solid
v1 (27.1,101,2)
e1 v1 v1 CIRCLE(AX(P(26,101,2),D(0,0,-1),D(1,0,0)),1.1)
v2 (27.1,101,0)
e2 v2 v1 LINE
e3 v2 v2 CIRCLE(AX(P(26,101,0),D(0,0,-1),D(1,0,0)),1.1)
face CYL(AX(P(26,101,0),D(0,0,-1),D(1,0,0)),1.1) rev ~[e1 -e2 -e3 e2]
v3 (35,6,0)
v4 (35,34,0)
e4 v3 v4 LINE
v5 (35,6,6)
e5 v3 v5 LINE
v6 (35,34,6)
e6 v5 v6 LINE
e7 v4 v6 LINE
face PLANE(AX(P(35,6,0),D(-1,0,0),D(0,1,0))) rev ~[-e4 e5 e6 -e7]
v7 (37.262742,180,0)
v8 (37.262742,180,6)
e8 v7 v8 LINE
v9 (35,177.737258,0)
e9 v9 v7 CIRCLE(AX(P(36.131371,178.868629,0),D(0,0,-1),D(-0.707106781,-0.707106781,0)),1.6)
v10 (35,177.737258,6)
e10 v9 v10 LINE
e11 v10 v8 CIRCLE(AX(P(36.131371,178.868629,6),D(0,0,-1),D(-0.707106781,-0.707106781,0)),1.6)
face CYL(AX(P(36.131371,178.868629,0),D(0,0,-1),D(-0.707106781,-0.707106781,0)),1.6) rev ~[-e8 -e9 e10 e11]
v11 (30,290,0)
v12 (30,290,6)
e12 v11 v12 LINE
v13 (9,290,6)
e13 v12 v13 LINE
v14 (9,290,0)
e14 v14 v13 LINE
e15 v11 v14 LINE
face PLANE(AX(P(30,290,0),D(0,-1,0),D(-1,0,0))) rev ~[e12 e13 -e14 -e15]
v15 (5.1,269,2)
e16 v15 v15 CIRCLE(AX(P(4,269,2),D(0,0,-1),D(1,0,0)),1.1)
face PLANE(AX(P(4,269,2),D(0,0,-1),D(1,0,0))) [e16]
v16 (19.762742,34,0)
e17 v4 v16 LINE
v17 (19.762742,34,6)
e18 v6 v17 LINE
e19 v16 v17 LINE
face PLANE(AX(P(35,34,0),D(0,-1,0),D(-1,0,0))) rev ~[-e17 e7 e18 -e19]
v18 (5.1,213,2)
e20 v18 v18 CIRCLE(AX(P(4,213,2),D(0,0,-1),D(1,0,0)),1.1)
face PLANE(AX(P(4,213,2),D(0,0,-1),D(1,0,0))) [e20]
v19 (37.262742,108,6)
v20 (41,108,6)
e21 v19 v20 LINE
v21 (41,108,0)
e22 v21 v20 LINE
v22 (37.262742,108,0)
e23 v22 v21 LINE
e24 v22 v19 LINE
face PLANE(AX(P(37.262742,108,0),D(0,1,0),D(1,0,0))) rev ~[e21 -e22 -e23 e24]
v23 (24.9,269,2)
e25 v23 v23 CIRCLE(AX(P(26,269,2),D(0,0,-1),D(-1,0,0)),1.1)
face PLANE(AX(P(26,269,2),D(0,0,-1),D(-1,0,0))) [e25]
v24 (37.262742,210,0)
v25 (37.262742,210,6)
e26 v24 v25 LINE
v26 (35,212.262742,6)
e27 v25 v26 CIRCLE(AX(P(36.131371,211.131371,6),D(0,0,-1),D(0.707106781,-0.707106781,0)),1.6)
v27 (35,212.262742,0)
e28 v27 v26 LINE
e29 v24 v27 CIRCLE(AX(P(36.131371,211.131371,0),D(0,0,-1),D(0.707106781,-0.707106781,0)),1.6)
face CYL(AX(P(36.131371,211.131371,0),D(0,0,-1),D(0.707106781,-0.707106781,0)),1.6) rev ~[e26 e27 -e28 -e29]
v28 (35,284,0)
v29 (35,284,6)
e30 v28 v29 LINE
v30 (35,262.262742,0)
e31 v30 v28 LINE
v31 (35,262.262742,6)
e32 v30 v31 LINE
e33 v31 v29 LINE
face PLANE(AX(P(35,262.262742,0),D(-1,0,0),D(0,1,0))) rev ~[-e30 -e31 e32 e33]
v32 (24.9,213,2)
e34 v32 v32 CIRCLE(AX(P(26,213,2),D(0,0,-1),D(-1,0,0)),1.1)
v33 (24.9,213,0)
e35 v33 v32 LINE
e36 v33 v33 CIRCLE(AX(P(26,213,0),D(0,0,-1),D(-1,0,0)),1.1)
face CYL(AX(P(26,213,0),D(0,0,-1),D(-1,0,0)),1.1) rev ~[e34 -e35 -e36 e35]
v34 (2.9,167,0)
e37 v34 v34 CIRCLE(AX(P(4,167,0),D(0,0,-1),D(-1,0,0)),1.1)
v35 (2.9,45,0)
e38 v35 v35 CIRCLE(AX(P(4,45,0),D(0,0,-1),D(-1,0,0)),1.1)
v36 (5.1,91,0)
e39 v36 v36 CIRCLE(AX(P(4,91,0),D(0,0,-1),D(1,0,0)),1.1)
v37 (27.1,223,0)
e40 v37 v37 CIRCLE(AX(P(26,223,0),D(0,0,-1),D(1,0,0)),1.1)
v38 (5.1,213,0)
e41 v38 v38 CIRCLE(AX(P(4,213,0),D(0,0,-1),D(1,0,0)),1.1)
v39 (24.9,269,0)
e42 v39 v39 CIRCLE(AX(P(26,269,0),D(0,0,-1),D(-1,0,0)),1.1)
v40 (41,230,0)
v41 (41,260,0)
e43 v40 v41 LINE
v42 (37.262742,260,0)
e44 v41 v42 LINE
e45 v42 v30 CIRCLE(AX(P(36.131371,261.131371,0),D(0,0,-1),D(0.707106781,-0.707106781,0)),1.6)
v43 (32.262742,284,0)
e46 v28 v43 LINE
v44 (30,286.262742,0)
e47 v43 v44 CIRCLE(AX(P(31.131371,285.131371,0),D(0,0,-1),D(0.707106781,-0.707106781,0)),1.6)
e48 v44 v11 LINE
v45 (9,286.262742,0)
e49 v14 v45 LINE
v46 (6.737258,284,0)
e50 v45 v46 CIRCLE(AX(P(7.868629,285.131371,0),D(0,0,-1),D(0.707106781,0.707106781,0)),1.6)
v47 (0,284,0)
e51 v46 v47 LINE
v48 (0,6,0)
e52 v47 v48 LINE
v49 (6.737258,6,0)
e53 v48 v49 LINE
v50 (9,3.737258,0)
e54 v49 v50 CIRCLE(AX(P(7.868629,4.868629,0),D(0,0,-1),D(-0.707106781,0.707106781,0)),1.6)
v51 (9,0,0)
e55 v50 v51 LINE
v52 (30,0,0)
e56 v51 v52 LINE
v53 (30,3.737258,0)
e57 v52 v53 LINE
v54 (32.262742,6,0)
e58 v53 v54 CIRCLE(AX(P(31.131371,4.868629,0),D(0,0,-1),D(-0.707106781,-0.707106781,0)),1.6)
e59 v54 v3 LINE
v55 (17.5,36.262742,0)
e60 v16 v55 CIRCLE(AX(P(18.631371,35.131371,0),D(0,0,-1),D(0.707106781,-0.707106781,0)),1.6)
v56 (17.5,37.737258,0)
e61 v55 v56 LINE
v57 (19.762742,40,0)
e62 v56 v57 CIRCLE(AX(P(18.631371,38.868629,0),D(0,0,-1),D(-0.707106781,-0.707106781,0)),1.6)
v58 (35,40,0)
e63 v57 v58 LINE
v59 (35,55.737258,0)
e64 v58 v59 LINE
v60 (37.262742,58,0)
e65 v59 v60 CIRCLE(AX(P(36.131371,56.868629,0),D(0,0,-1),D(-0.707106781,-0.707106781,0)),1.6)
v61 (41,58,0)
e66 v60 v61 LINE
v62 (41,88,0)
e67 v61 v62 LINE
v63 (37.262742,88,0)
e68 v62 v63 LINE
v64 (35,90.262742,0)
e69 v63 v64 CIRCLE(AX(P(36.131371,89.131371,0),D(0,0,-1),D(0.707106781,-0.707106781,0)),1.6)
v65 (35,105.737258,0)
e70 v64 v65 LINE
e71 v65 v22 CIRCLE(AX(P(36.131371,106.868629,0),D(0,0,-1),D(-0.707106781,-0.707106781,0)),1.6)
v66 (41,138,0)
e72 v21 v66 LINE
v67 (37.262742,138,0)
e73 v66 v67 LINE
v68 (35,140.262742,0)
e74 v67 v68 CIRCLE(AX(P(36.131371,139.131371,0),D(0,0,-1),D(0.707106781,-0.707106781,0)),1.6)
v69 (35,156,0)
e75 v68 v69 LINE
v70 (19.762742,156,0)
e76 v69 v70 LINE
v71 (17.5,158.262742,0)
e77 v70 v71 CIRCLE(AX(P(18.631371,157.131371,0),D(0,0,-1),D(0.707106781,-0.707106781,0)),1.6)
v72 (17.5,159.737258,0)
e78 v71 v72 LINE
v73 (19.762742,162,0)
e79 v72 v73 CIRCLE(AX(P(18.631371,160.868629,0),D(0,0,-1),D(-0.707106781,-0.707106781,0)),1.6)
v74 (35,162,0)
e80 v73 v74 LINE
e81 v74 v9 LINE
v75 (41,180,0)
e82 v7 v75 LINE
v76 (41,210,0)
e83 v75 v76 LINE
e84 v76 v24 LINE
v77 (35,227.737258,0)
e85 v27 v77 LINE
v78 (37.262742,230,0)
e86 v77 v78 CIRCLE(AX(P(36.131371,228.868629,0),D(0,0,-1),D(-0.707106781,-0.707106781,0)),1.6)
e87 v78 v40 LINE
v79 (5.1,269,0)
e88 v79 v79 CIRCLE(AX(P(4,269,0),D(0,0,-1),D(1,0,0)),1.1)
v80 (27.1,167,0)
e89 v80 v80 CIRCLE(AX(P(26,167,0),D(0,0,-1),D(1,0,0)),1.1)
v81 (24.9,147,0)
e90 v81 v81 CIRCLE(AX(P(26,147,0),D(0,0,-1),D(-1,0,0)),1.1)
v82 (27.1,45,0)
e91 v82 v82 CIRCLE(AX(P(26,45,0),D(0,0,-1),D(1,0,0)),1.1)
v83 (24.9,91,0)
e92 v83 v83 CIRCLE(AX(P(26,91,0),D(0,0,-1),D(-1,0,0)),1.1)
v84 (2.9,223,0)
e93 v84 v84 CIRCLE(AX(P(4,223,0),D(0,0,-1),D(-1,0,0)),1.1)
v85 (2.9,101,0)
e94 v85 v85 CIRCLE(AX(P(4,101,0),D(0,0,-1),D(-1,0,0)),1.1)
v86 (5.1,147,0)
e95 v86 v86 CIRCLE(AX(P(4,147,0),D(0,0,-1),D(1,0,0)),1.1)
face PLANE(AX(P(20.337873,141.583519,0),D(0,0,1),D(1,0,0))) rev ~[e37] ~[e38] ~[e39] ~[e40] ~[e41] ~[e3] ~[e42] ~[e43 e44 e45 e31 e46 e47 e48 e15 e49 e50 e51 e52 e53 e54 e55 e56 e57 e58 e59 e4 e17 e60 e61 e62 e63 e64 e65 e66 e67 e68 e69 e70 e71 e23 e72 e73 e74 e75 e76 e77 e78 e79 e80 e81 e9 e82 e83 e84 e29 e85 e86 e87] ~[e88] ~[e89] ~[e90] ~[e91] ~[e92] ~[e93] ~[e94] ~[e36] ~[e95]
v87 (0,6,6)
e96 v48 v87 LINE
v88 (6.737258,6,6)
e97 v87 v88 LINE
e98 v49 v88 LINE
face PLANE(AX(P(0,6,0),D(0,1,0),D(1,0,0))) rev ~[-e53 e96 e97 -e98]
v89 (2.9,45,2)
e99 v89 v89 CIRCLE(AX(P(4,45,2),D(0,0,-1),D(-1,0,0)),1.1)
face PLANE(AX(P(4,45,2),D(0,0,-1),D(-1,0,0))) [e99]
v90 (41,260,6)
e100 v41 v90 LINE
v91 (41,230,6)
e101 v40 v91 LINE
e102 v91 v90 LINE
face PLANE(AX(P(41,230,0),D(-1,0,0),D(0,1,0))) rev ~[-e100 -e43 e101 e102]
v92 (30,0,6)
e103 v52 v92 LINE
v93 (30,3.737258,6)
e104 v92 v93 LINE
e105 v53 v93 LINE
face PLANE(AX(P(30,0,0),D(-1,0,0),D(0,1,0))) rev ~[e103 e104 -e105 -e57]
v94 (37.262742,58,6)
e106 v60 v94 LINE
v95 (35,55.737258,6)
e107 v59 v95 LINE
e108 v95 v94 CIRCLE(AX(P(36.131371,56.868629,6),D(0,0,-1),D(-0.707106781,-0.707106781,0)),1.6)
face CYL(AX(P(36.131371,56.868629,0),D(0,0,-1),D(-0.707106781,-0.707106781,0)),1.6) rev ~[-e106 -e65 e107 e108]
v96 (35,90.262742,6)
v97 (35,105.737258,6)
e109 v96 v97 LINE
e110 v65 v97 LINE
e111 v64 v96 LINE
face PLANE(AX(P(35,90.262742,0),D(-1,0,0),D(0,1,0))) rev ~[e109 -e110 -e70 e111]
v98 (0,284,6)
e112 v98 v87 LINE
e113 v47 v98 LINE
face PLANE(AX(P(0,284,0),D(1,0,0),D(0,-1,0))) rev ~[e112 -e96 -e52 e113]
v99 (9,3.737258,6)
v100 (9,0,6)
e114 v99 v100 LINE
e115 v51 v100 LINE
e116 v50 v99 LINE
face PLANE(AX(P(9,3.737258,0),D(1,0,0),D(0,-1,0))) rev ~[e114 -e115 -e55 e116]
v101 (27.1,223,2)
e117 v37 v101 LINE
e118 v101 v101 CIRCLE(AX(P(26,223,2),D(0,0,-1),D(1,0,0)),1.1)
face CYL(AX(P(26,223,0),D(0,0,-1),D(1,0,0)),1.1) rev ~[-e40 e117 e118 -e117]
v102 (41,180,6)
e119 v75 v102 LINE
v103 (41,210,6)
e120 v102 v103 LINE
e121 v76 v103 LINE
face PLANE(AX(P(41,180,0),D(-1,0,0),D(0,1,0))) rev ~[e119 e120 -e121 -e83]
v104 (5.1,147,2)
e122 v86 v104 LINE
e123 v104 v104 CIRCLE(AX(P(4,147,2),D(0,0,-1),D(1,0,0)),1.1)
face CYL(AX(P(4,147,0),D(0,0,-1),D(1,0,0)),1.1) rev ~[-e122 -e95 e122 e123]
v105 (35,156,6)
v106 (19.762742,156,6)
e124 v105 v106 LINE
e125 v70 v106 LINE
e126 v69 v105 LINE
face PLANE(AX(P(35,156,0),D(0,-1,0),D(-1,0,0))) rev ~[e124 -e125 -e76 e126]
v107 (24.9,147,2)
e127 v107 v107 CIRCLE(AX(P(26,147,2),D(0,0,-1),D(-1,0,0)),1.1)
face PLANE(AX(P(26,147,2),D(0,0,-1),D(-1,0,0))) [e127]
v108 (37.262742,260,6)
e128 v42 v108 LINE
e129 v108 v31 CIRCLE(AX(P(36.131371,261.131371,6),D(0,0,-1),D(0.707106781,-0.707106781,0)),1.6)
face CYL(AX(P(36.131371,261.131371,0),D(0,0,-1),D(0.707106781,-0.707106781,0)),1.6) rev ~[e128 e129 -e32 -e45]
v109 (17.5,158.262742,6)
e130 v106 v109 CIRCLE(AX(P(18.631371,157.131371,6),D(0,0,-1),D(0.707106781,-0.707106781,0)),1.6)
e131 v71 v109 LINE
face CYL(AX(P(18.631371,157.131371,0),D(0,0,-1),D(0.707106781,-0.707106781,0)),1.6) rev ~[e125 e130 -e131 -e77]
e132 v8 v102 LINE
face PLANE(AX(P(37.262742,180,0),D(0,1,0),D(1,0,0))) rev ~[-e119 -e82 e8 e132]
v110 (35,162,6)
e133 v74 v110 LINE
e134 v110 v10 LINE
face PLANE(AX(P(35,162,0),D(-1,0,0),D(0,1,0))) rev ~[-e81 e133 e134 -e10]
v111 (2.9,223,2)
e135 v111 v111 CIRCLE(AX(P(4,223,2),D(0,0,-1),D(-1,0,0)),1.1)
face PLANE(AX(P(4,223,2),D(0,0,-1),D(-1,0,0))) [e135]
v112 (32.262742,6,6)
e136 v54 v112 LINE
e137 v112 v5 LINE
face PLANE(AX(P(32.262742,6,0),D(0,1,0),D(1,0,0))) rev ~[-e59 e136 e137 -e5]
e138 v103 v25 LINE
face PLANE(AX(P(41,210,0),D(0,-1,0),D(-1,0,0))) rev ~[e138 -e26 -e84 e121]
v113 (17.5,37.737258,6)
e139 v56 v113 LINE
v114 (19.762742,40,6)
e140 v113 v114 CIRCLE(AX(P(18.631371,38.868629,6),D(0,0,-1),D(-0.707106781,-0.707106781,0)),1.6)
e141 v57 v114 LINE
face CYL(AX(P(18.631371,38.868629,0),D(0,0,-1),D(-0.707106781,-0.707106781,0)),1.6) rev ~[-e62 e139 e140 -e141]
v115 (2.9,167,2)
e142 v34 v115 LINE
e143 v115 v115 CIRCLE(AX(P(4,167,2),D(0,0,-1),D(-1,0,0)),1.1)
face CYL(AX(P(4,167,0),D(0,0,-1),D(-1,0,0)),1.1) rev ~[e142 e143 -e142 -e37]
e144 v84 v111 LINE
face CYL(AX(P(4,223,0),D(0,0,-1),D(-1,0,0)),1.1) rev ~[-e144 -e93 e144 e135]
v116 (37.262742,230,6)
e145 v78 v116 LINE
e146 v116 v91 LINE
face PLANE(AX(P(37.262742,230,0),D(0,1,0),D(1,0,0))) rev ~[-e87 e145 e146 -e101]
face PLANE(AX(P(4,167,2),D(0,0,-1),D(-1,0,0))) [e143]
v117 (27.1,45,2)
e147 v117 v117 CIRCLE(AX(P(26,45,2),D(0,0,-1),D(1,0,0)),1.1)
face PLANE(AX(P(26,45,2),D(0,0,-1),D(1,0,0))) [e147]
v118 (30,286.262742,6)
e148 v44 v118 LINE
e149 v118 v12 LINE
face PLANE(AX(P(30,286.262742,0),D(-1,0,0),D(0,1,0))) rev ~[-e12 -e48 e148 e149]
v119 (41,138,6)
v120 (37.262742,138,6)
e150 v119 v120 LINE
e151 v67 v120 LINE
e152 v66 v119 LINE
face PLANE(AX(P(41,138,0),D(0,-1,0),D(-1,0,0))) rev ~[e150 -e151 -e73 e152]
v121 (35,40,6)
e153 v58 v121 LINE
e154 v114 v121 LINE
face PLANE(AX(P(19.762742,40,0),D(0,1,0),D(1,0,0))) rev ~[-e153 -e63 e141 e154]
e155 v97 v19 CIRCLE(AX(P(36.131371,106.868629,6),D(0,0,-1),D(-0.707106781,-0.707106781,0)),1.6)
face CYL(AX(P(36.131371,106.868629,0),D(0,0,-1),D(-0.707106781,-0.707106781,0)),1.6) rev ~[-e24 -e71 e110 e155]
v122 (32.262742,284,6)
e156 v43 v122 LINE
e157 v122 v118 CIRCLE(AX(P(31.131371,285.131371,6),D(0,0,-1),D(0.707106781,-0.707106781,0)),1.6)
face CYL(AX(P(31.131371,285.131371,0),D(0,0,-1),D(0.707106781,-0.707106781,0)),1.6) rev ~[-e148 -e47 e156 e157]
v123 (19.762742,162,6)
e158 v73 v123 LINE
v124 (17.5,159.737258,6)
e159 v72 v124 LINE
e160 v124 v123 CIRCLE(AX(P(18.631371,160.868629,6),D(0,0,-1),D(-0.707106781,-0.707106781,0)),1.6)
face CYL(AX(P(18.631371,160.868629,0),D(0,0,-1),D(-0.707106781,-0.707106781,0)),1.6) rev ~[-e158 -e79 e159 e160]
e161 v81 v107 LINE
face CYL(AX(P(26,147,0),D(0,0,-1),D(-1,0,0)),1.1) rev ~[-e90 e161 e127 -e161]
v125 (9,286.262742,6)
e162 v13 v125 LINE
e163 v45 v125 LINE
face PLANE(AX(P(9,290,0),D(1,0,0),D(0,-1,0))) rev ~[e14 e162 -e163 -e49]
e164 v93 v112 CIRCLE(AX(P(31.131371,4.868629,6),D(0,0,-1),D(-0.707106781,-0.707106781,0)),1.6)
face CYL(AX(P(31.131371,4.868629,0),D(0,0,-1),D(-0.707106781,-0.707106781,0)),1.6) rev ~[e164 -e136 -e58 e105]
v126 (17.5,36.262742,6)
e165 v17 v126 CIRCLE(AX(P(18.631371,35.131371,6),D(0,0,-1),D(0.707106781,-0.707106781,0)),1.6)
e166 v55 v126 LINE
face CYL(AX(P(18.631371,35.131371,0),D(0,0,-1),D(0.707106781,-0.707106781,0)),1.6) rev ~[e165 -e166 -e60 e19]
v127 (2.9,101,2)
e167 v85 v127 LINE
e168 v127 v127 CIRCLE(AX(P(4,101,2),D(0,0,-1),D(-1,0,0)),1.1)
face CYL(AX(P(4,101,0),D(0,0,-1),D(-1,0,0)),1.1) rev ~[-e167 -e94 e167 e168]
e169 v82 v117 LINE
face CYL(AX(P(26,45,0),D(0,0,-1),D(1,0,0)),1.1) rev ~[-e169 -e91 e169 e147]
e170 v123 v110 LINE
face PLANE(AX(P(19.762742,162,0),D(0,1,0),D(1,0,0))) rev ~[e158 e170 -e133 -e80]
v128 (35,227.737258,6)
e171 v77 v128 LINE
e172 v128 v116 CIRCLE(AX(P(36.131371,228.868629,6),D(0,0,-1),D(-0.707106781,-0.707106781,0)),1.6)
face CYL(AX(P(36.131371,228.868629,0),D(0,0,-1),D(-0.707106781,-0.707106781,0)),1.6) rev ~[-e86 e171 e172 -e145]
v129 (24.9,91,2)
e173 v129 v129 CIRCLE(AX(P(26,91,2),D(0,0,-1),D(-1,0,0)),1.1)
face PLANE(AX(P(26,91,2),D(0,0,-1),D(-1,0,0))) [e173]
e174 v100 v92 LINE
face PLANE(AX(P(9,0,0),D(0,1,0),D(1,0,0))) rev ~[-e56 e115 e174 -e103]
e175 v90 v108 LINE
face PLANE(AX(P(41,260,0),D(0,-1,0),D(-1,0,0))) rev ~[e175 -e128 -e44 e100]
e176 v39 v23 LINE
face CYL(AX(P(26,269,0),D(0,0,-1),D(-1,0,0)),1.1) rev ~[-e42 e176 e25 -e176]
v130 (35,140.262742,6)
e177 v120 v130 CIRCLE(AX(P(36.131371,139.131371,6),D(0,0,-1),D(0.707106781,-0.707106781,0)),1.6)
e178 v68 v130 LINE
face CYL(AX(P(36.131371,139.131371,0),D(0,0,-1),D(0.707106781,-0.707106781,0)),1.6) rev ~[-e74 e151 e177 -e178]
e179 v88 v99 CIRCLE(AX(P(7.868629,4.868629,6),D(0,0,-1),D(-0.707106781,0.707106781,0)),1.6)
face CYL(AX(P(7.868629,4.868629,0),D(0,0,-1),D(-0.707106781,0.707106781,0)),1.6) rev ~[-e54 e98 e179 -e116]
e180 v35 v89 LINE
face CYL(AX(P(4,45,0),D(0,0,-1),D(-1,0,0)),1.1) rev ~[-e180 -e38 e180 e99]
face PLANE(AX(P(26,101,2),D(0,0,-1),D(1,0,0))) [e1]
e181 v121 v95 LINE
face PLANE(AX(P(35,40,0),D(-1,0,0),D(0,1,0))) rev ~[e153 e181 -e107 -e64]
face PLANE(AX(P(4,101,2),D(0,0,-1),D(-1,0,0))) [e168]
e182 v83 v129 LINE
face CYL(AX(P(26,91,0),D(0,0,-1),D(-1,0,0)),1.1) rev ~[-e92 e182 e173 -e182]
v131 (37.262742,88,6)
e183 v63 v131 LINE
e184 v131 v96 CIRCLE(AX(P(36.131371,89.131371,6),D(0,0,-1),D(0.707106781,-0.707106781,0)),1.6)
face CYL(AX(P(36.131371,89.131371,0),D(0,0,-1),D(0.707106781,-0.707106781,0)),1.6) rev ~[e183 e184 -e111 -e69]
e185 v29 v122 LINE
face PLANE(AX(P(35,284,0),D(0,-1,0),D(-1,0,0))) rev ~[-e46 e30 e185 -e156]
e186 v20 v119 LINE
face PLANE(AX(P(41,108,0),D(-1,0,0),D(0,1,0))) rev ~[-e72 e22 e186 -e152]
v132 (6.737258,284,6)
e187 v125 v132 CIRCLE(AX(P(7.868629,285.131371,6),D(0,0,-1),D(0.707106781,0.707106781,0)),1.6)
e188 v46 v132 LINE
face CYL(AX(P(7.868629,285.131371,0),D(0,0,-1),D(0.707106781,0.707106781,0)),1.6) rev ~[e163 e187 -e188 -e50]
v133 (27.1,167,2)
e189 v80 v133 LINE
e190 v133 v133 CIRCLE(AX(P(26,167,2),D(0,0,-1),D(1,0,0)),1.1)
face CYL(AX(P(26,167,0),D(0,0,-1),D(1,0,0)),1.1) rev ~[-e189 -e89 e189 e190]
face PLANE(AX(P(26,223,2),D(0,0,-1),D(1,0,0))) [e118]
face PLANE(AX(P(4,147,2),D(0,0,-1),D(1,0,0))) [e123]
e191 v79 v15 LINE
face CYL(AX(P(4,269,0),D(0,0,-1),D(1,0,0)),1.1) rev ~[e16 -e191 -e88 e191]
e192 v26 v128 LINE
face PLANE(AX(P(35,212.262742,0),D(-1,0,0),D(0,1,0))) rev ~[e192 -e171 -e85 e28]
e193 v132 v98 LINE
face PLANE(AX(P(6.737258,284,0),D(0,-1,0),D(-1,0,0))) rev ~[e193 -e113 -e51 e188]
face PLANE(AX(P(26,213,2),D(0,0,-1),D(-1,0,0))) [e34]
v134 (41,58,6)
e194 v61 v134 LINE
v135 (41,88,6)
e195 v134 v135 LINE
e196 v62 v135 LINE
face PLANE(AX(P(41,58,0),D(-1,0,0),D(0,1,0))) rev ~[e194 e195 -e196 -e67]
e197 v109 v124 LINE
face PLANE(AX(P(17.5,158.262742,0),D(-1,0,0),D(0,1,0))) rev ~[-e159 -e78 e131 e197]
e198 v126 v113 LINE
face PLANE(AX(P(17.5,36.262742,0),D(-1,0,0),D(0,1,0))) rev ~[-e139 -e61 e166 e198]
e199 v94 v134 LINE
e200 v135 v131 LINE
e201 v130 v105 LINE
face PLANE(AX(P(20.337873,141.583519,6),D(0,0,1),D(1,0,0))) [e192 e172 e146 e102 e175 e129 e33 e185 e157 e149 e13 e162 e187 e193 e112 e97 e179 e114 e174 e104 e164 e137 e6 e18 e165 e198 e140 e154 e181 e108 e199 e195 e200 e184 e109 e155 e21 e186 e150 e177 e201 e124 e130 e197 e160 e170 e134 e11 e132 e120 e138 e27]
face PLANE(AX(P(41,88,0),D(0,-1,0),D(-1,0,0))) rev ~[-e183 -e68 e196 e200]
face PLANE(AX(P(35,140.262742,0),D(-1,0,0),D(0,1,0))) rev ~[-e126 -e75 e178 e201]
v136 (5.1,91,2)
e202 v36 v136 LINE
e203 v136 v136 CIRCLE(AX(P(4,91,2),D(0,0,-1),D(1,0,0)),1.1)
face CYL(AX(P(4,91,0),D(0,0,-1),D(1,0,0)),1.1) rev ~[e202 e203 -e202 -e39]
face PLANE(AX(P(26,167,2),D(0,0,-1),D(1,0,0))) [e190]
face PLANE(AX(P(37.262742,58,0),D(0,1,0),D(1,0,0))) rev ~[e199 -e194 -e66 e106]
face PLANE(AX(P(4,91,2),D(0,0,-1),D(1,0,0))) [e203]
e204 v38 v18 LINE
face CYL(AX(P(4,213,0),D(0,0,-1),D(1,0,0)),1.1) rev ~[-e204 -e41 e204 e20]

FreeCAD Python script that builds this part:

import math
import FreeCAD as App
import Part
import Sketcher

V = App.Vector
Q = App.Units.Quantity

doc = App.newDocument("Part")
params = doc.addObject("Spreadsheet::Sheet", "Params")
for row, (alias, value) in enumerate([
    ("sketch1_radius", "1.6 mm"),
    ("sketch1_width", "21 mm"),
    ("sketch1_height", "28 mm"),
    ("sketch1_height2", "30 mm"),
    ("sketch1_height3", "278 mm"),
    ("pad1_length", "6 mm"),
    ("sketch2_diameter", "2.2 mm"),
    ("pocket1_length", "2 mm"),
], start=1):
    params.set(f"A{row}", alias)
    params.set(f"B{row}", "=" + value)
    params.setAlias(f"B{row}", alias)

body = doc.addObject("PartDesign::Body", "Body")

sketch1 = doc.addObject("Sketcher::SketchObject", "Sketch")
body.addObject(sketch1)
sketch1.AttachmentSupport = (doc.XY_Plane, [""])
sketch1.MapMode = "FlatFace"
sketch1.addGeometry(Part.LineSegment(V(0, 6, 0), V(6.7, 6, 0)), False)
sketch1.addGeometry(Part.ArcOfCircle(Part.Circle(V(7.9, 4.9, 0), V(0, 0, 1), 1.6), math.radians(-45), math.radians(135)), False)
sketch1.addGeometry(Part.LineSegment(V(9, 3.7, 0), V(9, 0, 0)), False)
sketch1.addGeometry(Part.LineSegment(V(9, 0, 0), V(30, 0, 0)), False)
sketch1.addGeometry(Part.LineSegment(V(30, 0, 0), V(30, 3.7, 0)), False)
sketch1.addGeometry(Part.ArcOfCircle(Part.Circle(V(31.1, 4.9, 0), V(0, 0, 1), 1.6), math.radians(45), math.radians(225)), False)
sketch1.addGeometry(Part.LineSegment(V(32.3, 6, 0), V(35, 6, 0)), False)
sketch1.addGeometry(Part.LineSegment(V(35, 6, 0), V(35, 34, 0)), False)
sketch1.addGeometry(Part.LineSegment(V(35, 34, 0), V(19.8, 34, 0)), False)
sketch1.addGeometry(Part.ArcOfCircle(Part.Circle(V(18.6, 35.1, 0), V(0, 0, 1), 1.6), math.radians(135), math.radians(315)), False)
sketch1.addGeometry(Part.LineSegment(V(17.5, 36.3, 0), V(17.5, 37.7, 0)), False)
sketch1.addGeometry(Part.ArcOfCircle(Part.Circle(V(18.6, 38.9, 0), V(0, 0, 1), 1.6), math.radians(45), math.radians(225)), False)
sketch1.addGeometry(Part.LineSegment(V(19.8, 40, 0), V(35, 40, 0)), False)
sketch1.addGeometry(Part.LineSegment(V(35, 40, 0), V(35, 55.7, 0)), False)
sketch1.addGeometry(Part.ArcOfCircle(Part.Circle(V(36.1, 56.9, 0), V(0, 0, 1), 1.6), math.radians(45), math.radians(225)), False)
sketch1.addGeometry(Part.LineSegment(V(37.3, 58, 0), V(41, 58, 0)), False)
sketch1.addGeometry(Part.LineSegment(V(41, 58, 0), V(41, 88, 0)), False)
sketch1.addGeometry(Part.LineSegment(V(41, 88, 0), V(37.3, 88, 0)), False)
sketch1.addGeometry(Part.ArcOfCircle(Part.Circle(V(36.1, 89.1, 0), V(0, 0, 1), 1.6), math.radians(135), math.radians(315)), False)
sketch1.addGeometry(Part.LineSegment(V(35, 90.3, 0), V(35, 105.7, 0)), False)
sketch1.addGeometry(Part.ArcOfCircle(Part.Circle(V(36.1, 106.9, 0), V(0, 0, 1), 1.6), math.radians(45), math.radians(225)), False)
sketch1.addGeometry(Part.LineSegment(V(37.3, 108, 0), V(41, 108, 0)), False)
sketch1.addGeometry(Part.LineSegment(V(41, 108, 0), V(41, 138, 0)), False)
sketch1.addGeometry(Part.LineSegment(V(41, 138, 0), V(37.3, 138, 0)), False)
sketch1.addGeometry(Part.ArcOfCircle(Part.Circle(V(36.1, 139.1, 0), V(0, 0, 1), 1.6), math.radians(135), math.radians(315)), False)
sketch1.addGeometry(Part.LineSegment(V(35, 140.3, 0), V(35, 156, 0)), False)
sketch1.addGeometry(Part.LineSegment(V(35, 156, 0), V(19.8, 156, 0)), False)
sketch1.addGeometry(Part.ArcOfCircle(Part.Circle(V(18.6, 157.1, 0), V(0, 0, 1), 1.6), math.radians(135), math.radians(315)), False)
sketch1.addGeometry(Part.LineSegment(V(17.5, 158.3, 0), V(17.5, 159.7, 0)), False)
sketch1.addGeometry(Part.ArcOfCircle(Part.Circle(V(18.6, 160.9, 0), V(0, 0, 1), 1.6), math.radians(45), math.radians(225)), False)
sketch1.addGeometry(Part.LineSegment(V(19.8, 162, 0), V(35, 162, 0)), False)
sketch1.addGeometry(Part.LineSegment(V(35, 162, 0), V(35, 177.7, 0)), False)
sketch1.addGeometry(Part.ArcOfCircle(Part.Circle(V(36.1, 178.9, 0), V(0, 0, 1), 1.6), math.radians(45), math.radians(225)), False)
sketch1.addGeometry(Part.LineSegment(V(37.3, 180, 0), V(41, 180, 0)), False)
sketch1.addGeometry(Part.LineSegment(V(41, 180, 0), V(41, 210, 0)), False)
sketch1.addGeometry(Part.LineSegment(V(41, 210, 0), V(37.3, 210, 0)), False)
sketch1.addGeometry(Part.ArcOfCircle(Part.Circle(V(36.1, 211.1, 0), V(0, 0, 1), 1.6), math.radians(135), math.radians(315)), False)
sketch1.addGeometry(Part.LineSegment(V(35, 212.3, 0), V(35, 227.7, 0)), False)
sketch1.addGeometry(Part.ArcOfCircle(Part.Circle(V(36.1, 228.9, 0), V(0, 0, 1), 1.6), math.radians(45), math.radians(225)), False)
sketch1.addGeometry(Part.LineSegment(V(37.3, 230, 0), V(41, 230, 0)), False)
sketch1.addGeometry(Part.LineSegment(V(41, 230, 0), V(41, 260, 0)), False)
sketch1.addGeometry(Part.LineSegment(V(41, 260, 0), V(37.3, 260, 0)), False)
sketch1.addGeometry(Part.ArcOfCircle(Part.Circle(V(36.1, 261.1, 0), V(0, 0, 1), 1.6), math.radians(135), math.radians(315)), False)
sketch1.addGeometry(Part.LineSegment(V(35, 262.3, 0), V(35, 284, 0)), False)
sketch1.addGeometry(Part.LineSegment(V(35, 284, 0), V(32.3, 284, 0)), False)
sketch1.addGeometry(Part.ArcOfCircle(Part.Circle(V(31.1, 285.1, 0), V(0, 0, 1), 1.6), math.radians(135), math.radians(315)), False)
sketch1.addGeometry(Part.LineSegment(V(30, 286.3, 0), V(30, 290, 0)), False)
sketch1.addGeometry(Part.LineSegment(V(30, 290, 0), V(9, 290, 0)), False)
sketch1.addGeometry(Part.LineSegment(V(9, 290, 0), V(9, 286.3, 0)), False)
sketch1.addGeometry(Part.ArcOfCircle(Part.Circle(V(7.9, 285.1, 0), V(0, 0, 1), 1.6), math.radians(-135), math.radians(45)), False)
sketch1.addGeometry(Part.LineSegment(V(6.7, 284, 0), V(0, 284, 0)), False)
sketch1.addGeometry(Part.LineSegment(V(0, 284, 0), V(0, 6, 0)), False)
sketch1.addConstraint(Sketcher.Constraint("Coincident", 0, 2, 1, 2))
sketch1.addConstraint(Sketcher.Constraint("Coincident", 1, 1, 2, 1))
sketch1.addConstraint(Sketcher.Constraint("Coincident", 2, 2, 3, 1))
sketch1.addConstraint(Sketcher.Constraint("Coincident", 3, 2, 4, 1))
sketch1.addConstraint(Sketcher.Constraint("Coincident", 4, 2, 5, 2))
sketch1.addConstraint(Sketcher.Constraint("Coincident", 5, 1, 6, 1))
sketch1.addConstraint(Sketcher.Constraint("Coincident", 6, 2, 7, 1))
sketch1.addConstraint(Sketcher.Constraint("Coincident", 7, 2, 8, 1))
sketch1.addConstraint(Sketcher.Constraint("Coincident", 8, 2, 9, 2))
sketch1.addConstraint(Sketcher.Constraint("Coincident", 9, 1, 10, 1))
sketch1.addConstraint(Sketcher.Constraint("Coincident", 10, 2, 11, 2))
sketch1.addConstraint(Sketcher.Constraint("Coincident", 11, 1, 12, 1))
sketch1.addConstraint(Sketcher.Constraint("Coincident", 12, 2, 13, 1))
sketch1.addConstraint(Sketcher.Constraint("Coincident", 13, 2, 14, 2))
sketch1.addConstraint(Sketcher.Constraint("Coincident", 14, 1, 15, 1))
sketch1.addConstraint(Sketcher.Constraint("Coincident", 15, 2, 16, 1))
sketch1.addConstraint(Sketcher.Constraint("Coincident", 16, 2, 17, 1))
sketch1.addConstraint(Sketcher.Constraint("Coincident", 17, 2, 18, 2))
sketch1.addConstraint(Sketcher.Constraint("Coincident", 18, 1, 19, 1))
sketch1.addConstraint(Sketcher.Constraint("Coincident", 19, 2, 20, 2))
sketch1.addConstraint(Sketcher.Constraint("Coincident", 20, 1, 21, 1))
sketch1.addConstraint(Sketcher.Constraint("Coincident", 21, 2, 22, 1))
sketch1.addConstraint(Sketcher.Constraint("Coincident", 22, 2, 23, 1))
sketch1.addConstraint(Sketcher.Constraint("Coincident", 23, 2, 24, 2))
sketch1.addConstraint(Sketcher.Constraint("Coincident", 24, 1, 25, 1))
sketch1.addConstraint(Sketcher.Constraint("Coincident", 25, 2, 26, 1))
sketch1.addConstraint(Sketcher.Constraint("Coincident", 26, 2, 27, 2))
sketch1.addConstraint(Sketcher.Constraint("Coincident", 27, 1, 28, 1))
sketch1.addConstraint(Sketcher.Constraint("Coincident", 28, 2, 29, 2))
sketch1.addConstraint(Sketcher.Constraint("Coincident", 29, 1, 30, 1))
sketch1.addConstraint(Sketcher.Constraint("Coincident", 30, 2, 31, 1))
sketch1.addConstraint(Sketcher.Constraint("Coincident", 31, 2, 32, 2))
sketch1.addConstraint(Sketcher.Constraint("Coincident", 32, 1, 33, 1))
sketch1.addConstraint(Sketcher.Constraint("Coincident", 33, 2, 34, 1))
sketch1.addConstraint(Sketcher.Constraint("Coincident", 34, 2, 35, 1))
sketch1.addConstraint(Sketcher.Constraint("Coincident", 35, 2, 36, 2))
sketch1.addConstraint(Sketcher.Constraint("Coincident", 36, 1, 37, 1))
sketch1.addConstraint(Sketcher.Constraint("Coincident", 37, 2, 38, 2))
sketch1.addConstraint(Sketcher.Constraint("Coincident", 38, 1, 39, 1))
sketch1.addConstraint(Sketcher.Constraint("Coincident", 39, 2, 40, 1))
sketch1.addConstraint(Sketcher.Constraint("Coincident", 40, 2, 41, 1))
sketch1.addConstraint(Sketcher.Constraint("Coincident", 41, 2, 42, 2))
sketch1.addConstraint(Sketcher.Constraint("Coincident", 42, 1, 43, 1))
sketch1.addConstraint(Sketcher.Constraint("Coincident", 43, 2, 44, 1))
sketch1.addConstraint(Sketcher.Constraint("Coincident", 44, 2, 45, 2))
sketch1.addConstraint(Sketcher.Constraint("Coincident", 45, 1, 46, 1))
sketch1.addConstraint(Sketcher.Constraint("Coincident", 46, 2, 47, 1))
sketch1.addConstraint(Sketcher.Constraint("Coincident", 47, 2, 48, 1))
sketch1.addConstraint(Sketcher.Constraint("Coincident", 48, 2, 49, 2))
sketch1.addConstraint(Sketcher.Constraint("Coincident", 49, 1, 50, 1))
sketch1.addConstraint(Sketcher.Constraint("Coincident", 50, 2, 51, 1))
sketch1.addConstraint(Sketcher.Constraint("Coincident", 51, 2, 0, 1))
sketch1.addConstraint(Sketcher.Constraint("Horizontal", 0))
sketch1.addConstraint(Sketcher.Constraint("Vertical", 2))
sketch1.addConstraint(Sketcher.Constraint("Horizontal", 3))
sketch1.addConstraint(Sketcher.Constraint("Vertical", 4))
sketch1.addConstraint(Sketcher.Constraint("Horizontal", 6))
sketch1.addConstraint(Sketcher.Constraint("Vertical", 7))
sketch1.addConstraint(Sketcher.Constraint("Horizontal", 8))
sketch1.addConstraint(Sketcher.Constraint("Vertical", 10))
sketch1.addConstraint(Sketcher.Constraint("Horizontal", 12))
sketch1.addConstraint(Sketcher.Constraint("Vertical", 13))
sketch1.addConstraint(Sketcher.Constraint("Horizontal", 15))
sketch1.addConstraint(Sketcher.Constraint("Vertical", 16))
sketch1.addConstraint(Sketcher.Constraint("Horizontal", 17))
sketch1.addConstraint(Sketcher.Constraint("Vertical", 19))
sketch1.addConstraint(Sketcher.Constraint("Horizontal", 21))
sketch1.addConstraint(Sketcher.Constraint("Vertical", 22))
sketch1.addConstraint(Sketcher.Constraint("Horizontal", 23))
sketch1.addConstraint(Sketcher.Constraint("Vertical", 25))
sketch1.addConstraint(Sketcher.Constraint("Horizontal", 26))
sketch1.addConstraint(Sketcher.Constraint("Vertical", 28))
sketch1.addConstraint(Sketcher.Constraint("Horizontal", 30))
sketch1.addConstraint(Sketcher.Constraint("Vertical", 31))
sketch1.addConstraint(Sketcher.Constraint("Horizontal", 33))
sketch1.addConstraint(Sketcher.Constraint("Vertical", 34))
sketch1.addConstraint(Sketcher.Constraint("Horizontal", 35))
sketch1.addConstraint(Sketcher.Constraint("Vertical", 37))
sketch1.addConstraint(Sketcher.Constraint("Horizontal", 39))
sketch1.addConstraint(Sketcher.Constraint("Vertical", 40))
sketch1.addConstraint(Sketcher.Constraint("Horizontal", 41))
sketch1.addConstraint(Sketcher.Constraint("Vertical", 43))
sketch1.addConstraint(Sketcher.Constraint("Horizontal", 44))
sketch1.addConstraint(Sketcher.Constraint("Vertical", 46))
sketch1.addConstraint(Sketcher.Constraint("Horizontal", 47))
sketch1.addConstraint(Sketcher.Constraint("Vertical", 48))
sketch1.addConstraint(Sketcher.Constraint("Horizontal", 50))
sketch1.addConstraint(Sketcher.Constraint("Vertical", 51))
sketch1.addConstraint(Sketcher.Constraint("Equal", 1, 5))
sketch1.addConstraint(Sketcher.Constraint("Equal", 5, 9))
sketch1.addConstraint(Sketcher.Constraint("Equal", 9, 11))
sketch1.addConstraint(Sketcher.Constraint("Equal", 11, 14))
sketch1.addConstraint(Sketcher.Constraint("Equal", 14, 18))
sketch1.addConstraint(Sketcher.Constraint("Equal", 18, 20))
sketch1.addConstraint(Sketcher.Constraint("Equal", 20, 24))
sketch1.addConstraint(Sketcher.Constraint("Equal", 24, 27))
sketch1.addConstraint(Sketcher.Constraint("Equal", 27, 29))
sketch1.addConstraint(Sketcher.Constraint("Equal", 29, 32))
sketch1.addConstraint(Sketcher.Constraint("Equal", 32, 36))
sketch1.addConstraint(Sketcher.Constraint("Equal", 36, 38))
sketch1.addConstraint(Sketcher.Constraint("Equal", 38, 42))
sketch1.addConstraint(Sketcher.Constraint("Equal", 42, 45))
sketch1.addConstraint(Sketcher.Constraint("Equal", 45, 49))
sketch1.addConstraint(Sketcher.Constraint("PointOnObject", 2, 2, -1))
sketch1.addConstraint(Sketcher.Constraint("PointOnObject", 50, 2, -2))
sketch1.addConstraint(Sketcher.Constraint("Horizontal", 1, 3, 5, 3))
sketch1.addConstraint(Sketcher.Constraint("Horizontal", 45, 3, 49, 3))
sketch1.addConstraint(Sketcher.Constraint("Horizontal", 1, 1, 4, 2))
sketch1.addConstraint(Sketcher.Constraint("Horizontal", 0, 2, 5, 1))
sketch1.addConstraint(Sketcher.Constraint("Horizontal", 45, 1, 48, 2))
sketch1.addConstraint(Sketcher.Constraint("Horizontal", 44, 2, 49, 1))
sketch1.addConstraint(Sketcher.Constraint("Vertical", 9, 3, 11, 3))
sketch1.addConstraint(Sketcher.Constraint("Vertical", 14, 3, 18, 3))
sketch1.addConstraint(Sketcher.Constraint("Vertical", 18, 3, 20, 3))
sketch1.addConstraint(Sketcher.Constraint("Vertical", 20, 3, 24, 3))
sketch1.addConstraint(Sketcher.Constraint("Vertical", 11, 3, 27, 3))
sketch1.addConstraint(Sketcher.Constraint("Vertical", 27, 3, 29, 3))
sketch1.addConstraint(Sketcher.Constraint("Vertical", 24, 3, 32, 3))
sketch1.addConstraint(Sketcher.Constraint("Vertical", 32, 3, 36, 3))
sketch1.addConstraint(Sketcher.Constraint("Vertical", 36, 3, 38, 3))
sketch1.addConstraint(Sketcher.Constraint("Vertical", 38, 3, 42, 3))
sketch1.addConstraint(Sketcher.Constraint("Vertical", 5, 3, 45, 3))
sketch1.addConstraint(Sketcher.Constraint("Vertical", 1, 3, 49, 3))
sketch1.addConstraint(Sketcher.Constraint("Vertical", 8, 2, 11, 1))
sketch1.addConstraint(Sketcher.Constraint("Vertical", 7, 2, 12, 2))
sketch1.addConstraint(Sketcher.Constraint("Vertical", 14, 1, 17, 2))
sketch1.addConstraint(Sketcher.Constraint("Vertical", 13, 2, 18, 1))
sketch1.addConstraint(Sketcher.Constraint("Vertical", 17, 2, 20, 1))
sketch1.addConstraint(Sketcher.Constraint("Vertical", 16, 2, 21, 2))
sketch1.addConstraint(Sketcher.Constraint("Vertical", 20, 1, 23, 2))
sketch1.addConstraint(Sketcher.Constraint("Vertical", 19, 2, 24, 1))
sketch1.addConstraint(Sketcher.Constraint("Vertical", 11, 1, 26, 2))
sketch1.addConstraint(Sketcher.Constraint("Vertical", 10, 2, 27, 1))
sketch1.addConstraint(Sketcher.Constraint("Vertical", 26, 2, 29, 1))
sketch1.addConstraint(Sketcher.Constraint("Vertical", 25, 2, 30, 2))
sketch1.addConstraint(Sketcher.Constraint("Vertical", 23, 2, 32, 1))
sketch1.addConstraint(Sketcher.Constraint("Vertical", 22, 2, 33, 2))
sketch1.addConstraint(Sketcher.Constraint("Vertical", 32, 1, 35, 2))
sketch1.addConstraint(Sketcher.Constraint("Vertical", 31, 2, 36, 1))
sketch1.addConstraint(Sketcher.Constraint("Vertical", 35, 2, 38, 1))
sketch1.addConstraint(Sketcher.Constraint("Vertical", 34, 2, 39, 2))
sketch1.addConstraint(Sketcher.Constraint("Vertical", 38, 1, 41, 2))
sketch1.addConstraint(Sketcher.Constraint("Vertical", 37, 2, 42, 1))
sketch1.addConstraint(Sketcher.Constraint("Vertical", 5, 1, 44, 2))
sketch1.addConstraint(Sketcher.Constraint("Vertical", 4, 2, 45, 1))
sketch1.addConstraint(Sketcher.Constraint("Equal", 41, 2))
sketch1.addConstraint(Sketcher.Constraint("Equal", 16, 22))
sketch1.addConstraint(Sketcher.Constraint("Equal", 13, 25))
sketch1.addConstraint(Sketcher.Constraint("Equal", 10, 28))
sketch1.addConstraint(Sketcher.Constraint("Equal", 25, 31))
sketch1.addConstraint(Sketcher.Constraint("Equal", 22, 34))
sketch1.addConstraint(Sketcher.Constraint("Equal", 19, 37))
sketch1.addConstraint(Sketcher.Constraint("Equal", 34, 40))
sketch1.addConstraint(Sketcher.Constraint("Equal", 4, 46))
sketch1.addConstraint(Sketcher.Constraint("Radius", 1, Q("1.6 mm")))
sketch1.addConstraint(Sketcher.Constraint("DistanceX", 3, 1, 3, 2, Q("21 mm")))
sketch1.addConstraint(Sketcher.Constraint("DistanceY", 7, 1, 7, 2, Q("28 mm")))
sketch1.addConstraint(Sketcher.Constraint("DistanceY", 16, 1, 16, 2, Q("30 mm")))
sketch1.addConstraint(Sketcher.Constraint("DistanceY", 51, 2, 51, 1, Q("278 mm")))
sketch1.addConstraint(Sketcher.Constraint("DistanceY", -1, 1, 0, 2, Q("6 mm")))
sketch1.addConstraint(Sketcher.Constraint("DistanceX", -1, 1, 1, 1, Q("9 mm")))
sketch1.addConstraint(Sketcher.Constraint("DistanceX", -1, 1, 6, 2, Q("35 mm")))
sketch1.addConstraint(Sketcher.Constraint("DistanceY", -1, 1, 11, 1, Q("40 mm")))
sketch1.addConstraint(Sketcher.Constraint("DistanceY", -1, 1, 14, 1, Q("58 mm")))
sketch1.addConstraint(Sketcher.Constraint("DistanceX", -1, 1, 15, 2, Q("41 mm")))
sketch1.addConstraint(Sketcher.Constraint("DistanceY", -1, 1, 20, 1, Q("108 mm")))
sketch1.addConstraint(Sketcher.Constraint("DistanceX", -1, 1, 9, 1, Q("17.5 mm")))
sketch1.addConstraint(Sketcher.Constraint("DistanceX", 0, 1, 0, 2, Q("6.737258 mm")))
sketch1.addConstraint(Sketcher.Constraint("DistanceX", 8, 2, 8, 1, Q("15.237258 mm")))
sketch1.addConstraint(Sketcher.Constraint("DistanceX", -1, 1, 1, 3, Q("7.868629 mm")))
sketch1.addConstraint(Sketcher.Constraint("DistanceX", -1, 1, 9, 3, Q("18.631371 mm")))
sketch1.addConstraint(Sketcher.Constraint("DistanceX", -1, 1, 14, 3, Q("36.131371 mm")))
sketch1.setExpression("Constraints[154]", "Params.sketch1_radius")
sketch1.setExpression("Constraints[155]", "Params.sketch1_width")
sketch1.setExpression("Constraints[156]", "Params.sketch1_height")
sketch1.setExpression("Constraints[157]", "Params.sketch1_height2")
sketch1.setExpression("Constraints[158]", "Params.sketch1_height3")
pad1 = doc.addObject("PartDesign::Pad", "Pad")
body.addObject(pad1)
pad1.Profile = sketch1
pad1.setExpression("Length", "Params.pad1_length")

sketch2 = doc.addObject("Sketcher::SketchObject", "Sketch001")
body.addObject(sketch2)
sketch2.AttachmentSupport = (doc.XY_Plane, [""])
sketch2.MapMode = "FlatFace"
sketch2.addGeometry(Part.Circle(V(4, 167, 0), V(0, 0, 1), 1.1), False)
sketch2.addGeometry(Part.Circle(V(26, 167, 0), V(0, 0, 1), 1.1), False)
sketch2.addGeometry(Part.Circle(V(26, 213, 0), V(0, 0, 1), 1.1), False)
sketch2.addGeometry(Part.Circle(V(4, 213, 0), V(0, 0, 1), 1.1), False)
sketch2.addGeometry(Part.Circle(V(26, 223, 0), V(0, 0, 1), 1.1), False)
sketch2.addGeometry(Part.Circle(V(4, 223, 0), V(0, 0, 1), 1.1), False)
sketch2.addGeometry(Part.Circle(V(26, 269, 0), V(0, 0, 1), 1.1), False)
sketch2.addGeometry(Part.Circle(V(4, 269, 0), V(0, 0, 1), 1.1), False)
sketch2.addGeometry(Part.Circle(V(4, 45, 0), V(0, 0, 1), 1.1), False)
sketch2.addGeometry(Part.Circle(V(26, 45, 0), V(0, 0, 1), 1.1), False)
sketch2.addGeometry(Part.Circle(V(26, 91, 0), V(0, 0, 1), 1.1), False)
sketch2.addGeometry(Part.Circle(V(4, 91, 0), V(0, 0, 1), 1.1), False)
sketch2.addGeometry(Part.Circle(V(26, 101, 0), V(0, 0, 1), 1.1), False)
sketch2.addGeometry(Part.Circle(V(4, 101, 0), V(0, 0, 1), 1.1), False)
sketch2.addGeometry(Part.Circle(V(26, 147, 0), V(0, 0, 1), 1.1), False)
sketch2.addGeometry(Part.Circle(V(4, 147, 0), V(0, 0, 1), 1.1), False)
sketch2.addConstraint(Sketcher.Constraint("Equal", 0, 1))
sketch2.addConstraint(Sketcher.Constraint("Equal", 1, 2))
sketch2.addConstraint(Sketcher.Constraint("Equal", 2, 3))
sketch2.addConstraint(Sketcher.Constraint("Equal", 3, 4))
sketch2.addConstraint(Sketcher.Constraint("Equal", 4, 5))
sketch2.addConstraint(Sketcher.Constraint("Equal", 5, 6))
sketch2.addConstraint(Sketcher.Constraint("Equal", 6, 7))
sketch2.addConstraint(Sketcher.Constraint("Equal", 7, 8))
sketch2.addConstraint(Sketcher.Constraint("Equal", 8, 9))
sketch2.addConstraint(Sketcher.Constraint("Equal", 9, 10))
sketch2.addConstraint(Sketcher.Constraint("Equal", 10, 11))
sketch2.addConstraint(Sketcher.Constraint("Equal", 11, 12))
sketch2.addConstraint(Sketcher.Constraint("Equal", 12, 13))
sketch2.addConstraint(Sketcher.Constraint("Equal", 13, 14))
sketch2.addConstraint(Sketcher.Constraint("Equal", 14, 15))
sketch2.addConstraint(Sketcher.Constraint("Horizontal", 0, 3, 1, 3))
sketch2.addConstraint(Sketcher.Constraint("Horizontal", 2, 3, 3, 3))
sketch2.addConstraint(Sketcher.Constraint("Horizontal", 4, 3, 5, 3))
sketch2.addConstraint(Sketcher.Constraint("Horizontal", 6, 3, 7, 3))
sketch2.addConstraint(Sketcher.Constraint("Horizontal", 8, 3, 9, 3))
sketch2.addConstraint(Sketcher.Constraint("Horizontal", 10, 3, 11, 3))
sketch2.addConstraint(Sketcher.Constraint("Horizontal", 12, 3, 13, 3))
sketch2.addConstraint(Sketcher.Constraint("Horizontal", 14, 3, 15, 3))
sketch2.addConstraint(Sketcher.Constraint("Vertical", 1, 3, 2, 3))
sketch2.addConstraint(Sketcher.Constraint("Vertical", 0, 3, 3, 3))
sketch2.addConstraint(Sketcher.Constraint("Vertical", 2, 3, 4, 3))
sketch2.addConstraint(Sketcher.Constraint("Vertical", 3, 3, 5, 3))
sketch2.addConstraint(Sketcher.Constraint("Vertical", 4, 3, 6, 3))
sketch2.addConstraint(Sketcher.Constraint("Vertical", 5, 3, 7, 3))
sketch2.addConstraint(Sketcher.Constraint("Vertical", 7, 3, 8, 3))
sketch2.addConstraint(Sketcher.Constraint("Vertical", 6, 3, 9, 3))
sketch2.addConstraint(Sketcher.Constraint("Vertical", 9, 3, 10, 3))
sketch2.addConstraint(Sketcher.Constraint("Vertical", 8, 3, 11, 3))
sketch2.addConstraint(Sketcher.Constraint("Vertical", 10, 3, 12, 3))
sketch2.addConstraint(Sketcher.Constraint("Vertical", 11, 3, 13, 3))
sketch2.addConstraint(Sketcher.Constraint("Vertical", 12, 3, 14, 3))
sketch2.addConstraint(Sketcher.Constraint("Vertical", 13, 3, 15, 3))
sketch2.addConstraint(Sketcher.Constraint("Diameter", 0, Q("2.2 mm")))
sketch2.addConstraint(Sketcher.Constraint("DistanceX", -1, 1, 0, 3, Q("4 mm")))
sketch2.addConstraint(Sketcher.Constraint("DistanceY", -1, 1, 0, 3, Q("167 mm")))
sketch2.addConstraint(Sketcher.Constraint("DistanceX", -1, 1, 1, 3, Q("26 mm")))
sketch2.addConstraint(Sketcher.Constraint("DistanceY", -1, 1, 2, 3, Q("213 mm")))
sketch2.addConstraint(Sketcher.Constraint("DistanceY", -1, 1, 4, 3, Q("223 mm")))
sketch2.addConstraint(Sketcher.Constraint("DistanceY", -1, 1, 6, 3, Q("269 mm")))
sketch2.addConstraint(Sketcher.Constraint("DistanceY", -1, 1, 8, 3, Q("45 mm")))
sketch2.addConstraint(Sketcher.Constraint("DistanceY", -1, 1, 10, 3, Q("91 mm")))
sketch2.addConstraint(Sketcher.Constraint("DistanceY", -1, 1, 12, 3, Q("101 mm")))
sketch2.addConstraint(Sketcher.Constraint("DistanceY", -1, 1, 14, 3, Q("147 mm")))
sketch2.setExpression("Constraints[37]", "Params.sketch2_diameter")
pocket1 = doc.addObject("PartDesign::Pocket", "Pocket")
body.addObject(pocket1)
pocket1.Profile = sketch2
pocket1.setExpression("Length", "Params.pocket1_length")
pocket1.Reversed = True

doc.recompute()
